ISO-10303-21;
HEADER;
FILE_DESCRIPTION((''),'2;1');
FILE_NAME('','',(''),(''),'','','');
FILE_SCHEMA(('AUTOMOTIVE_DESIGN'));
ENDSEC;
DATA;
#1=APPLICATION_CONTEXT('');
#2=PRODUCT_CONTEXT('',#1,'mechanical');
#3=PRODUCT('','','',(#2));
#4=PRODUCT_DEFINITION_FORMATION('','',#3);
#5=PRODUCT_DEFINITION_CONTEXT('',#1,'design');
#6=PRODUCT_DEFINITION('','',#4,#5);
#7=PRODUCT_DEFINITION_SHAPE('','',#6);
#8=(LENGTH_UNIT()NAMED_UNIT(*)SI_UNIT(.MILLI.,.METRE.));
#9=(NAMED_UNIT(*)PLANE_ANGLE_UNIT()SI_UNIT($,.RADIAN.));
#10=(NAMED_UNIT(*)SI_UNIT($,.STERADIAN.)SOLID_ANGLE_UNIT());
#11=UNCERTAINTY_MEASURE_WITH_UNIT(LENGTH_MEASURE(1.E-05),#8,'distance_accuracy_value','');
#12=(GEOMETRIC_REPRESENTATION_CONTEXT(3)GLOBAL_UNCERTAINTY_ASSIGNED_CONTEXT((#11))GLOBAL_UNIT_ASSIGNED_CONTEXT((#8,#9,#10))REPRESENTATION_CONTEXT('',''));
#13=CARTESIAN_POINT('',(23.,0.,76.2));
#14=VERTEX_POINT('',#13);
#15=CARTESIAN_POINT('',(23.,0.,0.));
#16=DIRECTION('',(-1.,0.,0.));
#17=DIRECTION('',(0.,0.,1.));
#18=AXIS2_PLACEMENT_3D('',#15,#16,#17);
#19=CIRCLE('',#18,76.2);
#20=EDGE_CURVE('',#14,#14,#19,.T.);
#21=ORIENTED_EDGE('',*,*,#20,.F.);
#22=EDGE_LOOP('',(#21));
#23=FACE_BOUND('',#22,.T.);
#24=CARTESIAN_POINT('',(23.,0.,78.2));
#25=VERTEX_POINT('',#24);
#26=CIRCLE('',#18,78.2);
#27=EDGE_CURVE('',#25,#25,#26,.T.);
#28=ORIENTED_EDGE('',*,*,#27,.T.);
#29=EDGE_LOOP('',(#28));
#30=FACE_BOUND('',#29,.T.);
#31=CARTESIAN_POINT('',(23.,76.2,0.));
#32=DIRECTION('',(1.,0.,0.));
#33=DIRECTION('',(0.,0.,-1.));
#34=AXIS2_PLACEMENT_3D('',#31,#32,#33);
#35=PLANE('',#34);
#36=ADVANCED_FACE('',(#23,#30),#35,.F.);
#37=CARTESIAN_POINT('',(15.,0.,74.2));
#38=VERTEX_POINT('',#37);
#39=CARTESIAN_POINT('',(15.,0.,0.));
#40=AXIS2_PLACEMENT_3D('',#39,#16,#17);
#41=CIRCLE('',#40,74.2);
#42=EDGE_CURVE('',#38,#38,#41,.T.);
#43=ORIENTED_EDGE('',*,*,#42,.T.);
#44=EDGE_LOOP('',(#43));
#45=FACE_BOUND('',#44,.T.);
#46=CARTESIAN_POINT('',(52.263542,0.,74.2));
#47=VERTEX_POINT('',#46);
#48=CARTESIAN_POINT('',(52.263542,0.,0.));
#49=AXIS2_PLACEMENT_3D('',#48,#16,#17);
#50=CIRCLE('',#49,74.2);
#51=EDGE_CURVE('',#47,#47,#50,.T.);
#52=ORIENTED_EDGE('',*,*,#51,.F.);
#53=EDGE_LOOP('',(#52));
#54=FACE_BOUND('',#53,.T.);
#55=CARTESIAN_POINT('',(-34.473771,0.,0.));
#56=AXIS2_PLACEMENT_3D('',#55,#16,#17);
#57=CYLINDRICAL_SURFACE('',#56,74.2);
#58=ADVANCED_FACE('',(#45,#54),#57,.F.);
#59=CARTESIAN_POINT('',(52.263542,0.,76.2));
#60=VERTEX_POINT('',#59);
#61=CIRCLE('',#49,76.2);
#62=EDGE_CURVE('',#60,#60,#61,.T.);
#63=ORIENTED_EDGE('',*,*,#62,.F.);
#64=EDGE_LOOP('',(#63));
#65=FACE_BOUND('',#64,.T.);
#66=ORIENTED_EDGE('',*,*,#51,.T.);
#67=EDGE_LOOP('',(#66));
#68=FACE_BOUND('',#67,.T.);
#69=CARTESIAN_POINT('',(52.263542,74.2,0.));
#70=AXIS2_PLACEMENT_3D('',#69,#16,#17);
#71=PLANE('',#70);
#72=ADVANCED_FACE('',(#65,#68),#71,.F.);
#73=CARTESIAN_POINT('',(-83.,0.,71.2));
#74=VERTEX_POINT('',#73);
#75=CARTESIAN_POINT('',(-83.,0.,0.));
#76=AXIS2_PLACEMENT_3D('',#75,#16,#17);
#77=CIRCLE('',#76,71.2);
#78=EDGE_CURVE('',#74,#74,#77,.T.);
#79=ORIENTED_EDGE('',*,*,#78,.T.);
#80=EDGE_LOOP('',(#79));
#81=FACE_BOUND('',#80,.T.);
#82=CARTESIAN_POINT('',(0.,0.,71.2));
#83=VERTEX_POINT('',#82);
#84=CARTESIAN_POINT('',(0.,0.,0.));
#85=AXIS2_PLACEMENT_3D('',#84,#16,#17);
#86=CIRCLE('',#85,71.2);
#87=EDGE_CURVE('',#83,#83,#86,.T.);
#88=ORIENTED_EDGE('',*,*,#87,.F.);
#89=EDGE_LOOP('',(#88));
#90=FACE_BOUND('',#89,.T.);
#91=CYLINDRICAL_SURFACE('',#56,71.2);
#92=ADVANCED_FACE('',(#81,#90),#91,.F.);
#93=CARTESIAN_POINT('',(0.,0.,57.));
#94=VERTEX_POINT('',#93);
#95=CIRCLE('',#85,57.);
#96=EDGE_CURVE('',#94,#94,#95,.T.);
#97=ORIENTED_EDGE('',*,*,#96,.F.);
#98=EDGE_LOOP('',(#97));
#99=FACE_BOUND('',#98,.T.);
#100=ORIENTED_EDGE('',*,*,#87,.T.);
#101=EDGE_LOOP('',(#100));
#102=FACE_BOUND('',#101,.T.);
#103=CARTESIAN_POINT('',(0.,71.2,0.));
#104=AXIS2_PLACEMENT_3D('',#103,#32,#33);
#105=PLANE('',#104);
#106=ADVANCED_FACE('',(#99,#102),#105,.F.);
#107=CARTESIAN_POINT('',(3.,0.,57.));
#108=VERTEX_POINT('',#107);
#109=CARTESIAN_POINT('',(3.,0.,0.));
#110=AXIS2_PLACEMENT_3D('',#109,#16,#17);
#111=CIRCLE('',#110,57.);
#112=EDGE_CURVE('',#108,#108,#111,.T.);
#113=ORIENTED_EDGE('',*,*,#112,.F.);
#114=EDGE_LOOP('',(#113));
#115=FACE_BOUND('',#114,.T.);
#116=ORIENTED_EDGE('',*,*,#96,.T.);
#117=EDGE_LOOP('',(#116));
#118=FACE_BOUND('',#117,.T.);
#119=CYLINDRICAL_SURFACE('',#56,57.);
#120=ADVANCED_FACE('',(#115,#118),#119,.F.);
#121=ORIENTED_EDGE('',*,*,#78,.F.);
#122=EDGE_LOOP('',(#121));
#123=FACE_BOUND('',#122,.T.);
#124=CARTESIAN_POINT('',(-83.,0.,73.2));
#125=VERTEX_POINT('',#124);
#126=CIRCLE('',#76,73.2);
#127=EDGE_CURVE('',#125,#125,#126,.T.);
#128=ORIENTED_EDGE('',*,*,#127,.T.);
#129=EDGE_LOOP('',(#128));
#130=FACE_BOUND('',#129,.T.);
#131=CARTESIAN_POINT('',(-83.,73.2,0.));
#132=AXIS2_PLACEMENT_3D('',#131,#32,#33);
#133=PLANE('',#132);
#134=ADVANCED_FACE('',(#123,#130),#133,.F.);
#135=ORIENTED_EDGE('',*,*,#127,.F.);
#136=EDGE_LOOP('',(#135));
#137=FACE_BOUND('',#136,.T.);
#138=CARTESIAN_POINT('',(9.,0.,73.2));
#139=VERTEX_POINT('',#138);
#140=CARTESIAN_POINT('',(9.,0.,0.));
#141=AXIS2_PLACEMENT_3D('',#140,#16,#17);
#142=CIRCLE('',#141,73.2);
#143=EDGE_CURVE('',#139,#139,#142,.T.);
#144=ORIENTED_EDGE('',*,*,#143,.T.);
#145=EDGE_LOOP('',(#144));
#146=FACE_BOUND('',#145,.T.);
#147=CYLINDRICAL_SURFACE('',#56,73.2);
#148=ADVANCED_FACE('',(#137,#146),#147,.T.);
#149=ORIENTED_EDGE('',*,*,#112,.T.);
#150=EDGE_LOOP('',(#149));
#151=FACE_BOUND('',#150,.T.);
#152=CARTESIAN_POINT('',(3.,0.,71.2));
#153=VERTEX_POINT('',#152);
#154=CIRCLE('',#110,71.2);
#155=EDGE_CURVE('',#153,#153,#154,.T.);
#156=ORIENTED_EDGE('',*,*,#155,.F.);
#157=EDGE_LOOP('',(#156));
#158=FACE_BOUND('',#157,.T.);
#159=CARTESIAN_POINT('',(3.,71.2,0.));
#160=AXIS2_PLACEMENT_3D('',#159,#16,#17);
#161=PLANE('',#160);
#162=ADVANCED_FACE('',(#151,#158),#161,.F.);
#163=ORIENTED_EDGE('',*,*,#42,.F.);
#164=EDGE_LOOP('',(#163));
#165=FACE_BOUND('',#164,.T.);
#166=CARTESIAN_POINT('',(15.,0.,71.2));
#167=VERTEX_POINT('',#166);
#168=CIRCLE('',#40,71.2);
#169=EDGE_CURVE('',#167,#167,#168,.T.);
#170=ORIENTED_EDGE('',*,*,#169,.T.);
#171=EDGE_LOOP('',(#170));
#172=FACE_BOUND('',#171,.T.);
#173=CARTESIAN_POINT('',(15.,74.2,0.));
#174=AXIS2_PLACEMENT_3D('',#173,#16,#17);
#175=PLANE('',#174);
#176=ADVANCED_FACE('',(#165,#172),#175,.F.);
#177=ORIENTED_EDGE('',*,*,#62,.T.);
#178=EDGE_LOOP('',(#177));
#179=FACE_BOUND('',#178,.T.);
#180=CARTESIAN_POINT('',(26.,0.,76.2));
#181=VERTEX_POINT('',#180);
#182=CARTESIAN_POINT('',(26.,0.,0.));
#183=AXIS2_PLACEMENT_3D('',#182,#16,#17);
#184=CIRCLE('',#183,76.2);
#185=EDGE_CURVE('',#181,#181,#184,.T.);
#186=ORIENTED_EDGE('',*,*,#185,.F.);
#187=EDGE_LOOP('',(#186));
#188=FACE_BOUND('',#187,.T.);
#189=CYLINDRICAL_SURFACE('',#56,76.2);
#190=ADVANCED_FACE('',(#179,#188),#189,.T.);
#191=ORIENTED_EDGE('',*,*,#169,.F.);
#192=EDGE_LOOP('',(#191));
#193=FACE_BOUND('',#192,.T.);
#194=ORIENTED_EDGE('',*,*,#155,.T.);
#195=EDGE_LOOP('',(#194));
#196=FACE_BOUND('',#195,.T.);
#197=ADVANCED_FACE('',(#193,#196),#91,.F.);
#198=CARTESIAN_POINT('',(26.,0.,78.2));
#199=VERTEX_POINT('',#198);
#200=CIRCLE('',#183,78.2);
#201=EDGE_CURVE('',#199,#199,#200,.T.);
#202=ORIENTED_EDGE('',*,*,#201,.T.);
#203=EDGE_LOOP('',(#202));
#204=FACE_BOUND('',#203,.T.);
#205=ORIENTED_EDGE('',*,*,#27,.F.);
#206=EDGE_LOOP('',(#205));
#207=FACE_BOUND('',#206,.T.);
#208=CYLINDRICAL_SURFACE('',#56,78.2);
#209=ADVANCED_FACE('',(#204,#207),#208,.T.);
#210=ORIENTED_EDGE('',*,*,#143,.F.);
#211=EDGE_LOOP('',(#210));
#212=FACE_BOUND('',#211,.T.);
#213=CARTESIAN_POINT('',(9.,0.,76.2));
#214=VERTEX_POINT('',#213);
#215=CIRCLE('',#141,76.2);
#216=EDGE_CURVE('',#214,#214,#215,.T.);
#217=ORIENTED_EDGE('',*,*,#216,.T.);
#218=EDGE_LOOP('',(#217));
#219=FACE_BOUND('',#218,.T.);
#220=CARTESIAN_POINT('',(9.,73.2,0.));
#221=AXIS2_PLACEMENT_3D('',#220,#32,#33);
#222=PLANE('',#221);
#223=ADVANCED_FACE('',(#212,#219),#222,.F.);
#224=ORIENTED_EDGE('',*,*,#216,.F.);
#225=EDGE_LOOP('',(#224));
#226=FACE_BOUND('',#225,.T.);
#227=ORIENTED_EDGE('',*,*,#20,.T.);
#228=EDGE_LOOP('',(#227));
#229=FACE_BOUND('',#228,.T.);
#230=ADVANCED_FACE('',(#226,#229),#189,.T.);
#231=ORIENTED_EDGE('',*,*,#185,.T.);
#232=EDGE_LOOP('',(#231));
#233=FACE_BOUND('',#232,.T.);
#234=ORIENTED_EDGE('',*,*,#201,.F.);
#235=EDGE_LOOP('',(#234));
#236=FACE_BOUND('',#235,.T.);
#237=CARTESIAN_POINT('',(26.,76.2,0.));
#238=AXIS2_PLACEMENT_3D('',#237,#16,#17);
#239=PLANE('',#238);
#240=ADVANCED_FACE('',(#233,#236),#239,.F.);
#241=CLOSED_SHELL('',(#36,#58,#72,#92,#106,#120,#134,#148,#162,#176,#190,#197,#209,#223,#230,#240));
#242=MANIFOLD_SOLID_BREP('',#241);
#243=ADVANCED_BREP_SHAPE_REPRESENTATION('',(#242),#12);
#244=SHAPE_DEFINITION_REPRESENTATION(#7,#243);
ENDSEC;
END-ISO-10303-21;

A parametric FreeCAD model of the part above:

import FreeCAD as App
import Part
import Sketcher

V = App.Vector


def add_polygon(sketch, points):
    """Adds a closed chain of lines whose ends are joined by coincident constraints."""
    first, n = sketch.GeometryCount, len(points)
    for a, b in zip(points, points[1:] + points[:1]):
        sketch.addGeometry(Part.LineSegment(App.Vector(*a, 0), App.Vector(*b, 0)), False)
    for i in range(n):
        sketch.addConstraint(Sketcher.Constraint("Coincident", first + i, 2, first + (i + 1) % n, 1))

doc = App.newDocument("Part")
params = doc.addObject("Spreadsheet::Sheet", "Params")
for row, (alias, value) in enumerate([
    ("sketch1_width", "12 mm"),
    ("sketch1_width2", "3 mm"),
    ("sketch1_width3", "14 mm"),
    ("sketch1_width4", "92 mm"),
    ("sketch1_width5", "83 mm"),
    ("revolution_angle", "360 deg"),
], start=1):
    params.set(f"A{row}", alias)
    params.set(f"B{row}", "=" + value)
    params.setAlias(f"B{row}", alias)

body = doc.addObject("PartDesign::Body", "Body")

# Sketch on XY plane
sketch1 = body.newObject("Sketcher::SketchObject", "Sketch")
sketch1.AttachmentSupport = (doc.getObject("XY_Plane"), [""])
sketch1.MapMode = "FlatFace"
add_polygon(sketch1, [(3, 71.2), (15, 71.2), (15, 74.2), (52.3, 74.2), (52.3, 76.2), (26, 76.2), (26, 78.2), (23, 78.2), (23, 76.2), (9, 76.2), (9, 73.2), (-83, 73.2), (-83, 71.2), (0, 71.2), (0, 57), (3, 57)])  # lines 0-15
sketch1.addConstraint(Sketcher.Constraint("Horizontal", 0))
sketch1.addConstraint(Sketcher.Constraint("Vertical", 1))
sketch1.addConstraint(Sketcher.Constraint("Horizontal", 2))
sketch1.addConstraint(Sketcher.Constraint("Vertical", 3))
sketch1.addConstraint(Sketcher.Constraint("Horizontal", 4))
sketch1.addConstraint(Sketcher.Constraint("Vertical", 5))
sketch1.addConstraint(Sketcher.Constraint("Horizontal", 6))
sketch1.addConstraint(Sketcher.Constraint("Vertical", 7))
sketch1.addConstraint(Sketcher.Constraint("Horizontal", 8))
sketch1.addConstraint(Sketcher.Constraint("Vertical", 9))
sketch1.addConstraint(Sketcher.Constraint("Horizontal", 10))
sketch1.addConstraint(Sketcher.Constraint("Vertical", 11))
sketch1.addConstraint(Sketcher.Constraint("Horizontal", 12))
sketch1.addConstraint(Sketcher.Constraint("Vertical", 13))
sketch1.addConstraint(Sketcher.Constraint("Horizontal", 14))
sketch1.addConstraint(Sketcher.Constraint("Vertical", 15))
sketch1.addConstraint(Sketcher.Constraint("PointOnObject", 12, 2, -2))
sketch1.addConstraint(Sketcher.Constraint("Horizontal", 4, 2, 7, 2))
sketch1.addConstraint(Sketcher.Constraint("Horizontal", 0, 2, 11, 2))
sketch1.addConstraint(Sketcher.Constraint("Equal", 6, 14))
sketch1.addConstraint(Sketcher.Constraint("Equal", 14, 1))
sketch1.addConstraint(Sketcher.Constraint("Equal", 3, 5))
sketch1.addConstraint(Sketcher.Constraint("Equal", 1, 9))
sketch1.addConstraint(Sketcher.Constraint("DistanceX", 0, 1, 0, 2, 12.0))
sketch1.addConstraint(Sketcher.Constraint("DistanceX", 6, 2, 6, 1, 3.0))
sketch1.addConstraint(Sketcher.Constraint("DistanceX", 8, 2, 8, 1, 14.0))
sketch1.addConstraint(Sketcher.Constraint("DistanceX", 10, 2, 10, 1, 92.0))
sketch1.addConstraint(Sketcher.Constraint("DistanceX", 12, 1, 12, 2, 83.0))
sketch1.addConstraint(Sketcher.Constraint("DistanceY", 3, 1, 3, 2, 2.0))
sketch1.addConstraint(Sketcher.Constraint("DistanceY", 13, 2, 13, 1, 14.2))
sketch1.addConstraint(Sketcher.Constraint("DistanceY", -1, 1, 13, 2, 57.0))
sketch1.addConstraint(Sketcher.Constraint("DistanceX", 2, 1, 2, 2, 37.263542))
sketch1.setExpression("Constraints[39]", "Params.sketch1_width")
sketch1.setExpression("Constraints[40]", "Params.sketch1_width2")
sketch1.setExpression("Constraints[41]", "Params.sketch1_width3")
sketch1.setExpression("Constraints[42]", "Params.sketch1_width4")
sketch1.setExpression("Constraints[43]", "Params.sketch1_width5")
revolution = body.newObject("PartDesign::Revolution", "Revolution")
revolution.Profile = sketch1
revolution.ReferenceAxis = (sketch1, ["H_Axis"])
revolution.setExpression("Angle", "Params.revolution_angle")

doc.recompute()
